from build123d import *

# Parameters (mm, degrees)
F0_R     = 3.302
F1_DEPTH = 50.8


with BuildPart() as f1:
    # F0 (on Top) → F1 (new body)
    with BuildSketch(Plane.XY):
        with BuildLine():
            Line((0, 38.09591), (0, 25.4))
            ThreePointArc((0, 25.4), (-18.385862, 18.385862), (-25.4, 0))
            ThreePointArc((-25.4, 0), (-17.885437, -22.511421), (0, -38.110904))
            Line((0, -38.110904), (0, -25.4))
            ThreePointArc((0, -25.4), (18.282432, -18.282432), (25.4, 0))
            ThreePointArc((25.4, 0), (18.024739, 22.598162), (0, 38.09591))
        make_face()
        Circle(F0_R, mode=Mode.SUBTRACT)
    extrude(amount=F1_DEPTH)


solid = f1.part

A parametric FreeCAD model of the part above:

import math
import FreeCAD as App
import Part
import Sketcher
from FreeCAD import Vector
Q = App.Units.Quantity

doc = App.newDocument("Part")
params = doc.addObject("Spreadsheet::Sheet", "Params")
for row, (alias, value) in enumerate([
    ("sketch1_diameter", "0.26 in"),
    ("pad1_length", "2 in"),
], start=1):
    params.set(f"A{row}", alias)
    params.set(f"B{row}", "=" + value)
    params.setAlias(f"B{row}", alias)

body = doc.addObject("PartDesign::Body", "Body")

# Sketch on XY plane
sketch1 = body.newObject("Sketcher::SketchObject", "Sketch")
sketch1.AttachmentSupport = (doc.getObject("XY_Plane"), [""])
sketch1.MapMode = "FlatFace"
sketch1.addGeometry([
    Part.LineSegment(Vector(0, 38.1, 0), Vector(0, 25.4, 0)),  # 0
    Part.ArcOfCircle(Part.Circle(Vector(-1.4, 1.4, 0), Vector(0, 0, 1), 24.1), math.radians(87), math.radians(183)),  # 1
    Part.ArcOfCircle(Part.Circle(Vector(19.7, 2.6, 0), Vector(0, 0, 1), 45.2), math.radians(-177), math.radians(-116)),  # 2
    Part.LineSegment(Vector(0, -38.1, 0), Vector(0, -25.4, 0)),  # 3
    Part.ArcOfCircle(Part.Circle(Vector(1, -1, 0), Vector(0, 0, 1), 24.4), math.radians(-92), math.radians(2)),  # 4
    Part.ArcOfCircle(Part.Circle(Vector(-18.7, -1.9, 0), Vector(0, 0, 1), 44.1), math.radians(2), math.radians(65)),  # 5
    Part.Circle(Vector(0, 0, 0), Vector(0, 0, 1), 3.3),  # 6
], False)
sketch1.addConstraint([
    Sketcher.Constraint("Coincident", 0, 2, 1, 1),
    Sketcher.Constraint("Tangent", 1, 2, 2, 1),
    Sketcher.Constraint("Coincident", 2, 2, 3, 1),
    Sketcher.Constraint("Coincident", 3, 2, 4, 1),
    Sketcher.Constraint("Tangent", 4, 2, 5, 1),
    Sketcher.Constraint("Coincident", 5, 2, 0, 1),
    Sketcher.Constraint("Vertical", 0),
    Sketcher.Constraint("Vertical", 3),
    Sketcher.Constraint("Coincident", 6, 3, -1, 1),
    Sketcher.Constraint("Symmetric", 0, 2, 3, 2, -1, 1),
    Sketcher.Constraint("Symmetric", 1, 2, 4, 2, -1, 1),
    Sketcher.Constraint("PointOnObject", 0, 2, -2),
    Sketcher.Constraint("PointOnObject", 1, 2, -1),
    Sketcher.Constraint("Diameter", 6, Q("0.26 in")),
    Sketcher.Constraint("DistanceY", -1, 1, 0, 2, Q("1 in")),
    Sketcher.Constraint("DistanceX", 1, 2, -1, 1, Q("1 in")),
    Sketcher.Constraint("Radius", 5, Q("44.14792 mm")),
    Sketcher.Constraint("Radius", 1, Q("24.078904 mm")),
    Sketcher.Constraint("Radius", 2, Q("45.191872 mm")),
    Sketcher.Constraint("Radius", 4, Q("24.377405 mm")),
])
sketch1.setExpression("Constraints[13]", "Params.sketch1_diameter")
pad1 = body.newObject("PartDesign::Pad", "Pad")
pad1.Profile = sketch1
pad1.setExpression("Length", "Params.pad1_length")

doc.recompute()
